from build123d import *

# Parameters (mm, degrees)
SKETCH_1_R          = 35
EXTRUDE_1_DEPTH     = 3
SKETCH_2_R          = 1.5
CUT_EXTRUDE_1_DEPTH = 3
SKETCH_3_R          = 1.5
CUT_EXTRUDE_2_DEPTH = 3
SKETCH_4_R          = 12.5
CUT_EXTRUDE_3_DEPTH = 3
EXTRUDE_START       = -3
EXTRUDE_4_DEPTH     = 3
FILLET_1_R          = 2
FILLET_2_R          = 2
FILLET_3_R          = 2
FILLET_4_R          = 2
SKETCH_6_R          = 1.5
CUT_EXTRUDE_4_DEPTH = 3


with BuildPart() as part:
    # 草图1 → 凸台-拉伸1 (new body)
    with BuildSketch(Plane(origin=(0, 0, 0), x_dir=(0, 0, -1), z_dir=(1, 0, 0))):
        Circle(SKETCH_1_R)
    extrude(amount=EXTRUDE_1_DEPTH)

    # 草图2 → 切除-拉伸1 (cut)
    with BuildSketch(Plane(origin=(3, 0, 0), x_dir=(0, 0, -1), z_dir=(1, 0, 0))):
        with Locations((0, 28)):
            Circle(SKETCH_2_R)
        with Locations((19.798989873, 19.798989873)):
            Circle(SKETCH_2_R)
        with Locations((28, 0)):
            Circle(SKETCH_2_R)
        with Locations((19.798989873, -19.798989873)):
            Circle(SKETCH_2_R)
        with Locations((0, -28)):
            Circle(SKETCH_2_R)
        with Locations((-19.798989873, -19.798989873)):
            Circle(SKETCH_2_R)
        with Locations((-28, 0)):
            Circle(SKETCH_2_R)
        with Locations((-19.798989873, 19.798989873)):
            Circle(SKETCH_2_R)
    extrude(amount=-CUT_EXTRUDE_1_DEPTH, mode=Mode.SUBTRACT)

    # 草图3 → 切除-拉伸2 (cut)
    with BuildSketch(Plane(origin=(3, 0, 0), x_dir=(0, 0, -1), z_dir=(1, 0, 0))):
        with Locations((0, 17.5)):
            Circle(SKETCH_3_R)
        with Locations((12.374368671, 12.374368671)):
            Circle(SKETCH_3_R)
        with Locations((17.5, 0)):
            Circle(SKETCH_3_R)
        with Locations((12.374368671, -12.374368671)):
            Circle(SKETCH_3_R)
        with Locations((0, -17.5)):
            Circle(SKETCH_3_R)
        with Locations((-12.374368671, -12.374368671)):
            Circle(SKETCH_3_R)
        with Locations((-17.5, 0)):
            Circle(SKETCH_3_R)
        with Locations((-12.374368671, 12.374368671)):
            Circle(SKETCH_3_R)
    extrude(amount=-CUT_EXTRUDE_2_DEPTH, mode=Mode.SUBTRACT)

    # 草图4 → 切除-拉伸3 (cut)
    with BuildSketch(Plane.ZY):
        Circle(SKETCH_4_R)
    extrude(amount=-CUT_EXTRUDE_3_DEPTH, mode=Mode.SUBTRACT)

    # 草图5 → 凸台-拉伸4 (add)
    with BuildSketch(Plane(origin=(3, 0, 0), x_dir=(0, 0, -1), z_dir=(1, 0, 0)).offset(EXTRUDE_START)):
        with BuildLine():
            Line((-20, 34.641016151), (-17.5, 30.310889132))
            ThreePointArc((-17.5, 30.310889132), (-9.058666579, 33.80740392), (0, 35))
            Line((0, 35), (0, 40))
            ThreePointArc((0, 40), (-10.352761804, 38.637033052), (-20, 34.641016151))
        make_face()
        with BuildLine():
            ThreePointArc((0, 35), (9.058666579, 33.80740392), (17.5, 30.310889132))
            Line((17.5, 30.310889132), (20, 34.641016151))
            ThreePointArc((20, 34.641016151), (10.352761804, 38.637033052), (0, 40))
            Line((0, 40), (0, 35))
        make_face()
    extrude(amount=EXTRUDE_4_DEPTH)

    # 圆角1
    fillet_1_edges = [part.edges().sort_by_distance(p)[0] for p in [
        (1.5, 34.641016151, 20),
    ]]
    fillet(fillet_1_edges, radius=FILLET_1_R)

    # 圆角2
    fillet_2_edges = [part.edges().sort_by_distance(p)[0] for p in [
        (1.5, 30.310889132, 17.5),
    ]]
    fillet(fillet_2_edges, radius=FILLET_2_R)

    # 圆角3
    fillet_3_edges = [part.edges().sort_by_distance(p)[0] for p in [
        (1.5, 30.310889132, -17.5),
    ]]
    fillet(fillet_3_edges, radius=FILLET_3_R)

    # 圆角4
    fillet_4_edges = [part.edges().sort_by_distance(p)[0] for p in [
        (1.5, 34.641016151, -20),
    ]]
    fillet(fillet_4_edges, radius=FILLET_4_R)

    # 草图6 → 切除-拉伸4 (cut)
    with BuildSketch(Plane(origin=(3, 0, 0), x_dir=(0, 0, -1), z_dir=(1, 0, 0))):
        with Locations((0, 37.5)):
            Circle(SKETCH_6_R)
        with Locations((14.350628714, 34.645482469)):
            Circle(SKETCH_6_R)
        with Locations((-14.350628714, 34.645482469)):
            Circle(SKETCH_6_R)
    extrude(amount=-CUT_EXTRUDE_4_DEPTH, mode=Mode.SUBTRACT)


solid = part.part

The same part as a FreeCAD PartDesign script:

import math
import FreeCAD as App
import Part
import Sketcher
from FreeCAD import Vector
Q = App.Units.Quantity


def edges_at(feature, points):
    """Names of the edges that pass closest to the given points."""
    edges = feature.Shape.Edges
    near = lambda p: min(range(len(edges)), key=lambda i: edges[i].distToShape(Part.Vertex(*p))[0])
    return sorted({f"Edge{near(p) + 1}" for p in points})

doc = App.newDocument("Part")
body = doc.addObject("PartDesign::Body", "Body")

# Sketch on YZ plane
sketch1 = body.newObject("Sketcher::SketchObject", "Sketch")
sketch1.AttachmentSupport = (doc.getObject("YZ_Plane"), [""])
sketch1.MapMode = "FlatFace"
sketch1.addGeometry(Part.Circle(Vector(0, 0, 0), Vector(0, 0, 1), 35), False)
sketch1.addConstraint([
    Sketcher.Constraint("Coincident", 0, 3, -1, 1),
    Sketcher.Constraint("Diameter", 0, Q("70 mm")),
])
pad1 = body.newObject("PartDesign::Pad", "Pad")
pad1.Profile = sketch1
pad1.Length = 3

# Sketch on YZ plane
sketch2 = body.newObject("Sketcher::SketchObject", "Sketch001")
sketch2.AttachmentSupport = (doc.getObject("YZ_Plane"), [""])
sketch2.MapMode = "FlatFace"
sketch2.AttachmentOffset = App.Placement(Vector(0, 0, 3), App.Rotation())
sketch2.addGeometry([
    Part.Circle(Vector(28, 0, 0), Vector(0, 0, 1), 1.5),  # 0
    Part.Circle(Vector(19.8, -19.8, 0), Vector(0, 0, 1), 1.5),  # 1
    Part.Circle(Vector(0, -28, 0), Vector(0, 0, 1), 1.5),  # 2
    Part.Circle(Vector(-19.8, -19.8, 0), Vector(0, 0, 1), 1.5),  # 3
    Part.Circle(Vector(-28, 0, 0), Vector(0, 0, 1), 1.5),  # 4
    Part.Circle(Vector(-19.8, 19.8, 0), Vector(0, 0, 1), 1.5),  # 5
    Part.Circle(Vector(0, 28, 0), Vector(0, 0, 1), 1.5),  # 6
    Part.Circle(Vector(19.8, 19.8, 0), Vector(0, 0, 1), 1.5),  # 7
], False)
sketch2.addConstraint([
    Sketcher.Constraint("Equal", 0, 1),
    Sketcher.Constraint("Equal", 1, 2),
    Sketcher.Constraint("Equal", 2, 3),
    Sketcher.Constraint("Equal", 3, 4),
    Sketcher.Constraint("Equal", 4, 5),
    Sketcher.Constraint("Equal", 5, 6),
    Sketcher.Constraint("Equal", 6, 7),
    Sketcher.Constraint("Symmetric", 0, 3, 4, 3, -1, 1),
    Sketcher.Constraint("Symmetric", 1, 3, 5, 3, -1, 1),
    Sketcher.Constraint("Symmetric", 2, 3, 6, 3, -1, 1),
    Sketcher.Constraint("Symmetric", 3, 3, 7, 3, -1, 1),
    Sketcher.Constraint("Symmetric", 1, 3, 3, 3, -2),
    Sketcher.Constraint("PointOnObject", 0, 3, -1),
    Sketcher.Constraint("PointOnObject", 2, 3, -2),
    Sketcher.Constraint("Diameter", 0, Q("3 mm")),
    Sketcher.Constraint("DistanceX", -1, 1, 0, 3, Q("28 mm")),
    Sketcher.Constraint("DistanceY", 2, 3, -1, 1, Q("28 mm")),
    Sketcher.Constraint("DistanceX", -1, 1, 1, 3, Q("19.79899 mm")),
    Sketcher.Constraint("DistanceY", 1, 3, -1, 1, Q("19.79899 mm")),
])
pocket1 = body.newObject("PartDesign::Pocket", "Pocket")
pocket1.Profile = sketch2
pocket1.Length = 3

# Sketch on YZ plane
sketch3 = body.newObject("Sketcher::SketchObject", "Sketch002")
sketch3.AttachmentSupport = (doc.getObject("YZ_Plane"), [""])
sketch3.MapMode = "FlatFace"
sketch3.AttachmentOffset = App.Placement(Vector(0, 0, 3), App.Rotation())
sketch3.addGeometry([
    Part.Circle(Vector(17.5, 0, 0), Vector(0, 0, 1), 1.5),  # 0
    Part.Circle(Vector(12.4, -12.4, 0), Vector(0, 0, 1), 1.5),  # 1
    Part.Circle(Vector(0, -17.5, 0), Vector(0, 0, 1), 1.5),  # 2
    Part.Circle(Vector(-12.4, -12.4, 0), Vector(0, 0, 1), 1.5),  # 3
    Part.Circle(Vector(-17.5, 0, 0), Vector(0, 0, 1), 1.5),  # 4
    Part.Circle(Vector(-12.4, 12.4, 0), Vector(0, 0, 1), 1.5),  # 5
    Part.Circle(Vector(0, 17.5, 0), Vector(0, 0, 1), 1.5),  # 6
    Part.Circle(Vector(12.4, 12.4, 0), Vector(0, 0, 1), 1.5),  # 7
], False)
sketch3.addConstraint([
    Sketcher.Constraint("Equal", 0, 1),
    Sketcher.Constraint("Equal", 1, 2),
    Sketcher.Constraint("Equal", 2, 3),
    Sketcher.Constraint("Equal", 3, 4),
    Sketcher.Constraint("Equal", 4, 5),
    Sketcher.Constraint("Equal", 5, 6),
    Sketcher.Constraint("Equal", 6, 7),
    Sketcher.Constraint("Symmetric", 0, 3, 4, 3, -1, 1),
    Sketcher.Constraint("Symmetric", 1, 3, 5, 3, -1, 1),
    Sketcher.Constraint("Symmetric", 2, 3, 6, 3, -1, 1),
    Sketcher.Constraint("Symmetric", 3, 3, 7, 3, -1, 1),
    Sketcher.Constraint("Symmetric", 1, 3, 3, 3, -2),
    Sketcher.Constraint("PointOnObject", 0, 3, -1),
    Sketcher.Constraint("PointOnObject", 2, 3, -2),
    Sketcher.Constraint("Diameter", 0, Q("3 mm")),
    Sketcher.Constraint("DistanceX", 4, 3, 0, 3, Q("35 mm")),
    Sketcher.Constraint("DistanceY", 2, 3, -1, 1, Q("17.5 mm")),
    Sketcher.Constraint("DistanceX", -1, 1, 1, 3, Q("12.374369 mm")),
    Sketcher.Constraint("DistanceY", 1, 3, -1, 1, Q("12.374369 mm")),
])
pocket2 = body.newObject("PartDesign::Pocket", "Pocket001")
pocket2.Profile = sketch3
pocket2.Length = 3

# Sketch on YZ plane
sketch4 = body.newObject("Sketcher::SketchObject", "Sketch003")
sketch4.AttachmentSupport = (doc.getObject("YZ_Plane"), [""])
sketch4.MapMode = "FlatFace"
sketch4.addGeometry(Part.Circle(Vector(0, 0, 0), Vector(0, 0, 1), 12), False)
sketch4.addConstraint([
    Sketcher.Constraint("Coincident", 0, 3, -1, 1),
    Sketcher.Constraint("Diameter", 0, Q("25 mm")),
])
pocket3 = body.newObject("PartDesign::Pocket", "Pocket002")
pocket3.Profile = sketch4
pocket3.Length = 3
pocket3.Reversed = True

# Sketch on YZ plane
sketch5 = body.newObject("Sketcher::SketchObject", "Sketch004")
sketch5.AttachmentSupport = (doc.getObject("YZ_Plane"), [""])
sketch5.MapMode = "FlatFace"
sketch5.addGeometry([
    Part.LineSegment(Vector(35, 20, 0), Vector(30, 18, 0)),  # 0
    Part.ArcOfCircle(Part.Circle(Vector(0, 0, 0), Vector(0, 0, 1), 35), math.radians(0), math.radians(30)),  # 1
    Part.ArcOfCircle(Part.Circle(Vector(0, 0, 0), Vector(0, 0, 1), 35), math.radians(-30), math.radians(0)),  # 2
    Part.LineSegment(Vector(30, -18, 0), Vector(35, -20, 0)),  # 3
    Part.ArcOfCircle(Part.Circle(Vector(0, 0, 0), Vector(0, 0, 1), 40), math.radians(-30), math.radians(0)),  # 4
    Part.ArcOfCircle(Part.Circle(Vector(0, 0, 0), Vector(0, 0, 1), 40), math.radians(0), math.radians(30)),  # 5
], False)
sketch5.addConstraint([
    Sketcher.Constraint("Coincident", 0, 2, 1, 2),
    Sketcher.Constraint("Tangent", 1, 1, 2, 2),
    Sketcher.Constraint("Coincident", 2, 1, 3, 1),
    Sketcher.Constraint("Coincident", 3, 2, 4, 1),
    Sketcher.Constraint("Tangent", 4, 2, 5, 1),
    Sketcher.Constraint("Coincident", 5, 2, 0, 1),
    Sketcher.Constraint("Coincident", 1, 3, -1, 1),
    Sketcher.Constraint("Coincident", 4, 3, -1, 1),
    Sketcher.Constraint("Equal", 1, 2),
    Sketcher.Constraint("Equal", 4, 5),
    Sketcher.Constraint("PointOnObject", 1, 1, -1),
    Sketcher.Constraint("PointOnObject", 4, 2, -1),
    Sketcher.Constraint("Vertical", 0, 2, 2, 1),
    Sketcher.Constraint("Vertical", 3, 2, 5, 2),
    Sketcher.Constraint("Radius", 1, Q("35 mm")),
    Sketcher.Constraint("Radius", 4, Q("40 mm")),
    Sketcher.Constraint("Angle", 0, Q("-150 deg")),
    Sketcher.Constraint("DistanceY", 3, 2, -1, 1, Q("20 mm")),
])
pad2 = body.newObject("PartDesign::Pad", "Pad001")
pad2.Profile = sketch5
pad2.Length = 3
doc.recompute()

fillet = body.newObject("PartDesign::Fillet", "Fillet")
fillet.Base = (pad2, edges_at(pad2, [(1.5, 34.641, 20)]))
fillet.Radius = 2
doc.recompute()

fillet2 = body.newObject("PartDesign::Fillet", "Fillet001")
fillet2.Base = (fillet, edges_at(fillet, [(1.5, 30.311, 17.5)]))
fillet2.Radius = 2
doc.recompute()

fillet3 = body.newObject("PartDesign::Fillet", "Fillet002")
fillet3.Base = (fillet2, edges_at(fillet2, [(1.5, 30.311, -17.5)]))
fillet3.Radius = 2
doc.recompute()

fillet4 = body.newObject("PartDesign::Fillet", "Fillet003")
fillet4.Base = (fillet3, edges_at(fillet3, [(1.5, 34.641, -20)]))
fillet4.Radius = 2

# Sketch on YZ plane
sketch6 = body.newObject("Sketcher::SketchObject", "Sketch005")
sketch6.AttachmentSupport = (doc.getObject("YZ_Plane"), [""])
sketch6.MapMode = "FlatFace"
sketch6.AttachmentOffset = App.Placement(Vector(0, 0, 3), App.Rotation())
sketch6.addGeometry([
    Part.Circle(Vector(37.5, 0, 0), Vector(0, 0, 1), 1.5),
    Part.Circle(Vector(34.6, -14.4, 0), Vector(0, 0, 1), 1.5),
    Part.Circle(Vector(34.6, 14.4, 0), Vector(0, 0, 1), 1.5),
], False)
sketch6.addConstraint([
    Sketcher.Constraint("Equal", 0, 1),
    Sketcher.Constraint("Equal", 1, 2),
    Sketcher.Constraint("Symmetric", 1, 3, 2, 3, -1),
    Sketcher.Constraint("PointOnObject", 0, 3, -1),
    Sketcher.Constraint("Diameter", 0, Q("3 mm")),
    Sketcher.Constraint("DistanceX", -1, 1, 0, 3, Q("37.5 mm")),
    Sketcher.Constraint("DistanceY", 1, 3, -1, 1, Q("14.350629 mm")),
    Sketcher.Constraint("DistanceX", -1, 1, 1, 3, Q("34.645482 mm")),
])
pocket4 = body.newObject("PartDesign::Pocket", "Pocket003")
pocket4.Profile = sketch6
pocket4.Length = 3

doc.recompute()
